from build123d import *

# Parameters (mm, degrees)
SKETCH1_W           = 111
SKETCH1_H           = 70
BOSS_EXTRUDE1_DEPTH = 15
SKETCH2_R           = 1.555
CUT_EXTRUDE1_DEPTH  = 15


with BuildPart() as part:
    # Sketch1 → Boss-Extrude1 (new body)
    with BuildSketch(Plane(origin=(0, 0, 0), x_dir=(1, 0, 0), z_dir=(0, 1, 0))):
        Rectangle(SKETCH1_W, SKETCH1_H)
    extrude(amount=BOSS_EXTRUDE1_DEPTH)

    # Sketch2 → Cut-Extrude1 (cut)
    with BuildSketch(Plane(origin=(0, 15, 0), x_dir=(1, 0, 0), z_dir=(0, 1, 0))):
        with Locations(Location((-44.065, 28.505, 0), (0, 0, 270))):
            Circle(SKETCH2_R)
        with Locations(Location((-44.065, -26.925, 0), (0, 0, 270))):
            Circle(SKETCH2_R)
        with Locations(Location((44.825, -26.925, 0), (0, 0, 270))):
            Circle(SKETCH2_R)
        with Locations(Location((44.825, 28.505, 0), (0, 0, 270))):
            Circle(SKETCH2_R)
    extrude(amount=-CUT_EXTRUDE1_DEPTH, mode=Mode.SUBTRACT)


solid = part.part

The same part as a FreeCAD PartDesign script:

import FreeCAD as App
import Part
import Sketcher

V = App.Vector


def add_polygon(sketch, points):
    """Adds a closed chain of lines whose ends are joined by coincident constraints."""
    first, n = sketch.GeometryCount, len(points)
    for a, b in zip(points, points[1:] + points[:1]):
        sketch.addGeometry(Part.LineSegment(App.Vector(*a, 0), App.Vector(*b, 0)), False)
    for i in range(n):
        sketch.addConstraint(Sketcher.Constraint("Coincident", first + i, 2, first + (i + 1) % n, 1))

doc = App.newDocument("Part")
body = doc.addObject("PartDesign::Body", "Body")

# Sketch on XZ plane
sketch1 = body.newObject("Sketcher::SketchObject", "Sketch")
sketch1.AttachmentSupport = (doc.getObject("XZ_Plane"), [""])
sketch1.MapMode = "FlatFace"
add_polygon(sketch1, [(-55.5, -35), (-55.5, 35), (55.5, 35), (55.5, -35)])  # lines 0-3
sketch1.addConstraint(Sketcher.Constraint("Vertical", 0))
sketch1.addConstraint(Sketcher.Constraint("Horizontal", 1))
sketch1.addConstraint(Sketcher.Constraint("Vertical", 2))
sketch1.addConstraint(Sketcher.Constraint("Horizontal", 3))
sketch1.addConstraint(Sketcher.Constraint("Symmetric", 0, 2, 2, 2, -1, 1))
sketch1.addConstraint(Sketcher.Constraint("DistanceX", 1, 1, 1, 2, 111.0))
sketch1.addConstraint(Sketcher.Constraint("DistanceY", 0, 1, 0, 2, 70.0))
pad1 = body.newObject("PartDesign::Pad", "Pad")
pad1.Profile = sketch1
pad1.Length = 15
pad1.Reversed = True

# Sketch on XZ plane
sketch2 = body.newObject("Sketcher::SketchObject", "Sketch001")
sketch2.AttachmentSupport = (doc.getObject("XZ_Plane"), [""])
sketch2.MapMode = "FlatFace"
sketch2.AttachmentOffset = App.Placement(V(0, 0, -15), App.Rotation())
sketch2.addGeometry(Part.Circle(V(-44.065, -28.505, 0), V(0, 0, 1), 1.555), False)
sketch2.addGeometry(Part.Circle(V(-44.065, 26.925, 0), V(0, 0, 1), 1.555), False)
sketch2.addGeometry(Part.Circle(V(44.825, 26.925, 0), V(0, 0, 1), 1.555), False)
sketch2.addGeometry(Part.Circle(V(44.825, -28.505, 0), V(0, 0, 1), 1.555), False)
sketch2.addConstraint(Sketcher.Constraint("Equal", 0, 1))
sketch2.addConstraint(Sketcher.Constraint("Equal", 1, 2))
sketch2.addConstraint(Sketcher.Constraint("Equal", 2, 3))
sketch2.addConstraint(Sketcher.Constraint("Horizontal", 1, 3, 2, 3))
sketch2.addConstraint(Sketcher.Constraint("Horizontal", 0, 3, 3, 3))
sketch2.addConstraint(Sketcher.Constraint("Vertical", 0, 3, 1, 3))
sketch2.addConstraint(Sketcher.Constraint("Vertical", 2, 3, 3, 3))
sketch2.addConstraint(Sketcher.Constraint("Diameter", 0, 3.11))
sketch2.addConstraint(Sketcher.Constraint("DistanceY", 0, 3, 1, 3, 55.43))
sketch2.addConstraint(Sketcher.Constraint("DistanceX", 1, 3, 2, 3, 88.89))
sketch2.addConstraint(Sketcher.Constraint("DistanceX", 0, 3, -1, 1, 44.065))
sketch2.addConstraint(Sketcher.Constraint("DistanceY", 0, 3, -1, 1, 28.505))
pocket1 = body.newObject("PartDesign::Pocket", "Pocket")
pocket1.Profile = sketch2
pocket1.Length = 15
pocket1.Reversed = True

doc.recompute()
